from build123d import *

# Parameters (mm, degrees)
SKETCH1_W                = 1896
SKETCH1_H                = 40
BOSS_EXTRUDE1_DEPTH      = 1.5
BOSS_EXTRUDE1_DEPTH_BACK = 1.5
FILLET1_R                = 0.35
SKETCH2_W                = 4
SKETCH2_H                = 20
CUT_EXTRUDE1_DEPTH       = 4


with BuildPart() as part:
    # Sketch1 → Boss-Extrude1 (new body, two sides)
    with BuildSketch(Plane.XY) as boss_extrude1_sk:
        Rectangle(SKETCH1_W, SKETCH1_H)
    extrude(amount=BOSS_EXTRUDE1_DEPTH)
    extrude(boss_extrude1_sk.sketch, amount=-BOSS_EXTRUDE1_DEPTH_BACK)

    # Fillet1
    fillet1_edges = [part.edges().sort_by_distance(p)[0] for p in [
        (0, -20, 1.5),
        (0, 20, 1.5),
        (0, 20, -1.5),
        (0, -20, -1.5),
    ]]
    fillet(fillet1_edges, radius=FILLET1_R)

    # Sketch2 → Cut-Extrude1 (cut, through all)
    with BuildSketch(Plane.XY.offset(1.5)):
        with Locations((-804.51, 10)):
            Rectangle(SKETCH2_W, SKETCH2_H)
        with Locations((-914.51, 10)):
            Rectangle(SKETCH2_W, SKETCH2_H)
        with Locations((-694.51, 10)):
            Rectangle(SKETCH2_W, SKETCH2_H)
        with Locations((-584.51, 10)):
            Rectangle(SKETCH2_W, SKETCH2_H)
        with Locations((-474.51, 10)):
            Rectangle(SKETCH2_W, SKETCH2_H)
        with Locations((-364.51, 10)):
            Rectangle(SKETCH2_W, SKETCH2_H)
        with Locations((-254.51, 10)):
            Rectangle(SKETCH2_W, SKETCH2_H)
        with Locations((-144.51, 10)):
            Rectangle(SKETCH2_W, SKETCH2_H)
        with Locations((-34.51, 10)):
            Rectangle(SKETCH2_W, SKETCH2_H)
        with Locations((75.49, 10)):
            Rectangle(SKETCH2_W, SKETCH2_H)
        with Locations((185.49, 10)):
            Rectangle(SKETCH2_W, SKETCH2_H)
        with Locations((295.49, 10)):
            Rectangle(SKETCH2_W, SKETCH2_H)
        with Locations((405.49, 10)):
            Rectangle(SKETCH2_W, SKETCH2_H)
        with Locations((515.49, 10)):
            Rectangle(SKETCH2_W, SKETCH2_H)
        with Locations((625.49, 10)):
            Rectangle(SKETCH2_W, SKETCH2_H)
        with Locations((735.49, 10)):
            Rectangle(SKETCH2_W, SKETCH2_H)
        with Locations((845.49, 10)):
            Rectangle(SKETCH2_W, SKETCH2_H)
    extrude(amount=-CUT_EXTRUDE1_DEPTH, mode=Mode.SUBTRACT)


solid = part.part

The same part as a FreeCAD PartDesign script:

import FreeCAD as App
import Part
import Sketcher


def edges_at(feature, points):
    """Names of the edges that pass closest to the given points."""
    edges = feature.Shape.Edges
    near = lambda p: min(range(len(edges)), key=lambda i: edges[i].distToShape(Part.Vertex(*p))[0])
    return sorted({f"Edge{near(p) + 1}" for p in points})

doc = App.newDocument("Part")
params = doc.addObject("Spreadsheet::Sheet", "Params")
for row, (alias, value) in enumerate([
    ("sketch1_width", "1896 mm"),
    ("sketch1_height", "40 mm"),
    ("pad1_length", "1.5 mm"),
    ("pad1_length2", "1.5 mm"),
    ("fillet_radius", "0.35 mm"),
    ("sketch2_width", "4 mm"),
    ("sketch2_height", "20 mm"),
], start=1):
    params.set(f"A{row}", alias)
    params.set(f"B{row}", "=" + value)
    params.setAlias(f"B{row}", alias)

body = doc.addObject("PartDesign::Body", "Body")

# Sketch on XY plane
sketch1 = body.newObject("Sketcher::SketchObject", "Sketch")
sketch1.AttachmentSupport = (doc.getObject("XY_Plane"), [""])
sketch1.MapMode = "FlatFace"
sketch1.addGeometry([
    Part.LineSegment(App.Vector(-948, 20, 0), App.Vector(-948, -20, 0)),
    Part.LineSegment(App.Vector(-948, -20, 0), App.Vector(948, -20, 0)),
    Part.LineSegment(App.Vector(948, -20, 0), App.Vector(948, 20, 0)),
    Part.LineSegment(App.Vector(948, 20, 0), App.Vector(-948, 20, 0)),
], False)
sketch1.addConstraint([
    Sketcher.Constraint("Coincident", 0, 2, 1, 1),
    Sketcher.Constraint("Coincident", 1, 2, 2, 1),
    Sketcher.Constraint("Coincident", 2, 2, 3, 1),
    Sketcher.Constraint("Coincident", 3, 2, 0, 1),
    Sketcher.Constraint("Vertical", 0),
    Sketcher.Constraint("Horizontal", 1),
    Sketcher.Constraint("Vertical", 2),
    Sketcher.Constraint("Horizontal", 3),
    Sketcher.Constraint("Symmetric", 0, 2, 2, 2, -1, 1),
    Sketcher.Constraint("DistanceX", 1, 1, 1, 2, 1896.0),
    Sketcher.Constraint("DistanceY", 0, 2, 0, 1, 40.0),
])
sketch1.setExpression("Constraints[9]", "Params.sketch1_width")
sketch1.setExpression("Constraints[10]", "Params.sketch1_height")
pad1 = body.newObject("PartDesign::Pad", "Pad")
pad1.Profile = sketch1
pad1.Type = "TwoLengths"
pad1.setExpression("Length", "Params.pad1_length")
pad1.setExpression("Length2", "Params.pad1_length2")
doc.recompute()

fillet = body.newObject("PartDesign::Fillet", "Fillet")
fillet.Base = (pad1, edges_at(pad1, [
    (0, -20, 1.5),
    (0, 20, 1.5),
    (0, 20, -1.5),
    (0, -20, -1.5),
]))
fillet.setExpression("Radius", "Params.fillet_radius")

# Sketch on XY plane
sketch2 = body.newObject("Sketcher::SketchObject", "Sketch001")
sketch2.AttachmentSupport = (doc.getObject("XY_Plane"), [""])
sketch2.MapMode = "FlatFace"
sketch2.AttachmentOffset = App.Placement(App.Vector(0, 0, 1.5), App.Rotation())
sketch2.addGeometry([
    Part.LineSegment(App.Vector(-806.51, 20, 0), App.Vector(-806.51, 0, 0)),  # 0
    Part.LineSegment(App.Vector(-806.51, 0, 0), App.Vector(-802.51, 0, 0)),  # 1
    Part.LineSegment(App.Vector(-802.51, 0, 0), App.Vector(-802.51, 20, 0)),  # 2
    Part.LineSegment(App.Vector(-802.51, 20, 0), App.Vector(-806.51, 20, 0)),  # 3
    Part.LineSegment(App.Vector(-916.51, 20, 0), App.Vector(-916.51, 0, 0)),  # 4
    Part.LineSegment(App.Vector(-916.51, 0, 0), App.Vector(-912.51, 0, 0)),  # 5
    Part.LineSegment(App.Vector(-912.51, 0, 0), App.Vector(-912.51, 20, 0)),  # 6
    Part.LineSegment(App.Vector(-912.51, 20, 0), App.Vector(-916.51, 20, 0)),  # 7
    Part.LineSegment(App.Vector(-696.51, 20, 0), App.Vector(-696.51, 0, 0)),  # 8
    Part.LineSegment(App.Vector(-696.51, 0, 0), App.Vector(-692.51, 0, 0)),  # 9
    Part.LineSegment(App.Vector(-692.51, 0, 0), App.Vector(-692.51, 20, 0)),  # 10
    Part.LineSegment(App.Vector(-692.51, 20, 0), App.Vector(-696.51, 20, 0)),  # 11
    Part.LineSegment(App.Vector(-586.51, 20, 0), App.Vector(-586.51, 0, 0)),  # 12
    Part.LineSegment(App.Vector(-586.51, 0, 0), App.Vector(-582.51, 0, 0)),  # 13
    Part.LineSegment(App.Vector(-582.51, 0, 0), App.Vector(-582.51, 20, 0)),  # 14
    Part.LineSegment(App.Vector(-582.51, 20, 0), App.Vector(-586.51, 20, 0)),  # 15
    Part.LineSegment(App.Vector(-476.51, 20, 0), App.Vector(-476.51, 0, 0)),  # 16
    Part.LineSegment(App.Vector(-476.51, 0, 0), App.Vector(-472.51, 0, 0)),  # 17
    Part.LineSegment(App.Vector(-472.51, 0, 0), App.Vector(-472.51, 20, 0)),  # 18
    Part.LineSegment(App.Vector(-472.51, 20, 0), App.Vector(-476.51, 20, 0)),  # 19
    Part.LineSegment(App.Vector(-366.51, 20, 0), App.Vector(-366.51, 0, 0)),  # 20
    Part.LineSegment(App.Vector(-366.51, 0, 0), App.Vector(-362.51, 0, 0)),  # 21
    Part.LineSegment(App.Vector(-362.51, 0, 0), App.Vector(-362.51, 20, 0)),  # 22
    Part.LineSegment(App.Vector(-362.51, 20, 0), App.Vector(-366.51, 20, 0)),  # 23
    Part.LineSegment(App.Vector(-256.51, 20, 0), App.Vector(-256.51, 0, 0)),  # 24
    Part.LineSegment(App.Vector(-256.51, 0, 0), App.Vector(-252.51, 0, 0)),  # 25
    Part.LineSegment(App.Vector(-252.51, 0, 0), App.Vector(-252.51, 20, 0)),  # 26
    Part.LineSegment(App.Vector(-252.51, 20, 0), App.Vector(-256.51, 20, 0)),  # 27
    Part.LineSegment(App.Vector(-146.51, 20, 0), App.Vector(-146.51, 0, 0)),  # 28
    Part.LineSegment(App.Vector(-146.51, 0, 0), App.Vector(-142.51, 0, 0)),  # 29
    Part.LineSegment(App.Vector(-142.51, 0, 0), App.Vector(-142.51, 20, 0)),  # 30
    Part.LineSegment(App.Vector(-142.51, 20, 0), App.Vector(-146.51, 20, 0)),  # 31
    Part.LineSegment(App.Vector(-36.51, 20, 0), App.Vector(-36.51, 0, 0)),  # 32
    Part.LineSegment(App.Vector(-36.51, 0, 0), App.Vector(-32.51, 0, 0)),  # 33
    Part.LineSegment(App.Vector(-32.51, 0, 0), App.Vector(-32.51, 20, 0)),  # 34
    Part.LineSegment(App.Vector(-32.51, 20, 0), App.Vector(-36.51, 20, 0)),  # 35
    Part.LineSegment(App.Vector(73.49, 20, 0), App.Vector(73.49, 0, 0)),  # 36
    Part.LineSegment(App.Vector(73.49, 0, 0), App.Vector(77.49, 0, 0)),  # 37
    Part.LineSegment(App.Vector(77.49, 0, 0), App.Vector(77.49, 20, 0)),  # 38
    Part.LineSegment(App.Vector(77.49, 20, 0), App.Vector(73.49, 20, 0)),  # 39
    Part.LineSegment(App.Vector(183.49, 20, 0), App.Vector(183.49, 0, 0)),  # 40
    Part.LineSegment(App.Vector(183.49, 0, 0), App.Vector(187.49, 0, 0)),  # 41
    Part.LineSegment(App.Vector(187.49, 0, 0), App.Vector(187.49, 20, 0)),  # 42
    Part.LineSegment(App.Vector(187.49, 20, 0), App.Vector(183.49, 20, 0)),  # 43
    Part.LineSegment(App.Vector(293.49, 20, 0), App.Vector(293.49, 0, 0)),  # 44
    Part.LineSegment(App.Vector(293.49, 0, 0), App.Vector(297.49, 0, 0)),  # 45
    Part.LineSegment(App.Vector(297.49, 0, 0), App.Vector(297.49, 20, 0)),  # 46
    Part.LineSegment(App.Vector(297.49, 20, 0), App.Vector(293.49, 20, 0)),  # 47
    Part.LineSegment(App.Vector(403.49, 20, 0), App.Vector(403.49, 0, 0)),  # 48
    Part.LineSegment(App.Vector(403.49, 0, 0), App.Vector(407.49, 0, 0)),  # 49
    Part.LineSegment(App.Vector(407.49, 0, 0), App.Vector(407.49, 20, 0)),  # 50
    Part.LineSegment(App.Vector(407.49, 20, 0), App.Vector(403.49, 20, 0)),  # 51
    Part.LineSegment(App.Vector(513.49, 20, 0), App.Vector(513.49, 0, 0)),  # 52
    Part.LineSegment(App.Vector(513.49, 0, 0), App.Vector(517.49, 0, 0)),  # 53
    Part.LineSegment(App.Vector(517.49, 0, 0), App.Vector(517.49, 20, 0)),  # 54
    Part.LineSegment(App.Vector(517.49, 20, 0), App.Vector(513.49, 20, 0)),  # 55
    Part.LineSegment(App.Vector(623.49, 20, 0), App.Vector(623.49, 0, 0)),  # 56
    Part.LineSegment(App.Vector(623.49, 0, 0), App.Vector(627.49, 0, 0)),  # 57
    Part.LineSegment(App.Vector(627.49, 0, 0), App.Vector(627.49, 20, 0)),  # 58
    Part.LineSegment(App.Vector(627.49, 20, 0), App.Vector(623.49, 20, 0)),  # 59
    Part.LineSegment(App.Vector(733.49, 20, 0), App.Vector(733.49, 0, 0)),  # 60
    Part.LineSegment(App.Vector(733.49, 0, 0), App.Vector(737.49, 0, 0)),  # 61
    Part.LineSegment(App.Vector(737.49, 0, 0), App.Vector(737.49, 20, 0)),  # 62
    Part.LineSegment(App.Vector(737.49, 20, 0), App.Vector(733.49, 20, 0)),  # 63
    Part.LineSegment(App.Vector(843.49, 20, 0), App.Vector(843.49, 0, 0)),  # 64
    Part.LineSegment(App.Vector(843.49, 0, 0), App.Vector(847.49, 0, 0)),  # 65
    Part.LineSegment(App.Vector(847.49, 0, 0), App.Vector(847.49, 20, 0)),  # 66
    Part.LineSegment(App.Vector(847.49, 20, 0), App.Vector(843.49, 20, 0)),  # 67
], False)
sketch2.addConstraint([
    Sketcher.Constraint("Coincident", 0, 2, 1, 1),
    Sketcher.Constraint("Coincident", 1, 2, 2, 1),
    Sketcher.Constraint("Coincident", 2, 2, 3, 1),
    Sketcher.Constraint("Coincident", 3, 2, 0, 1),
    Sketcher.Constraint("Coincident", 4, 2, 5, 1),
    Sketcher.Constraint("Coincident", 5, 2, 6, 1),
    Sketcher.Constraint("Coincident", 6, 2, 7, 1),
    Sketcher.Constraint("Coincident", 7, 2, 4, 1),
    Sketcher.Constraint("Coincident", 8, 2, 9, 1),
    Sketcher.Constraint("Coincident", 9, 2, 10, 1),
    Sketcher.Constraint("Coincident", 10, 2, 11, 1),
    Sketcher.Constraint("Coincident", 11, 2, 8, 1),
    Sketcher.Constraint("Coincident", 12, 2, 13, 1),
    Sketcher.Constraint("Coincident", 13, 2, 14, 1),
    Sketcher.Constraint("Coincident", 14, 2, 15, 1),
    Sketcher.Constraint("Coincident", 15, 2, 12, 1),
    Sketcher.Constraint("Coincident", 16, 2, 17, 1),
    Sketcher.Constraint("Coincident", 17, 2, 18, 1),
    Sketcher.Constraint("Coincident", 18, 2, 19, 1),
    Sketcher.Constraint("Coincident", 19, 2, 16, 1),
    Sketcher.Constraint("Coincident", 20, 2, 21, 1),
    Sketcher.Constraint("Coincident", 21, 2, 22, 1),
    Sketcher.Constraint("Coincident", 22, 2, 23, 1),
    Sketcher.Constraint("Coincident", 23, 2, 20, 1),
    Sketcher.Constraint("Coincident", 24, 2, 25, 1),
    Sketcher.Constraint("Coincident", 25, 2, 26, 1),
    Sketcher.Constraint("Coincident", 26, 2, 27, 1),
    Sketcher.Constraint("Coincident", 27, 2, 24, 1),
    Sketcher.Constraint("Coincident", 28, 2, 29, 1),
    Sketcher.Constraint("Coincident", 29, 2, 30, 1),
    Sketcher.Constraint("Coincident", 30, 2, 31, 1),
    Sketcher.Constraint("Coincident", 31, 2, 28, 1),
    Sketcher.Constraint("Coincident", 32, 2, 33, 1),
    Sketcher.Constraint("Coincident", 33, 2, 34, 1),
    Sketcher.Constraint("Coincident", 34, 2, 35, 1),
    Sketcher.Constraint("Coincident", 35, 2, 32, 1),
    Sketcher.Constraint("Coincident", 36, 2, 37, 1),
    Sketcher.Constraint("Coincident", 37, 2, 38, 1),
    Sketcher.Constraint("Coincident", 38, 2, 39, 1),
    Sketcher.Constraint("Coincident", 39, 2, 36, 1),
    Sketcher.Constraint("Coincident", 40, 2, 41, 1),
    Sketcher.Constraint("Coincident", 41, 2, 42, 1),
    Sketcher.Constraint("Coincident", 42, 2, 43, 1),
    Sketcher.Constraint("Coincident", 43, 2, 40, 1),
    Sketcher.Constraint("Coincident", 44, 2, 45, 1),
    Sketcher.Constraint("Coincident", 45, 2, 46, 1),
    Sketcher.Constraint("Coincident", 46, 2, 47, 1),
    Sketcher.Constraint("Coincident", 47, 2, 44, 1),
    Sketcher.Constraint("Coincident", 48, 2, 49, 1),
    Sketcher.Constraint("Coincident", 49, 2, 50, 1),
    Sketcher.Constraint("Coincident", 50, 2, 51, 1),
    Sketcher.Constraint("Coincident", 51, 2, 48, 1),
    Sketcher.Constraint("Coincident", 52, 2, 53, 1),
    Sketcher.Constraint("Coincident", 53, 2, 54, 1),
    Sketcher.Constraint("Coincident", 54, 2, 55, 1),
    Sketcher.Constraint("Coincident", 55, 2, 52, 1),
    Sketcher.Constraint("Coincident", 56, 2, 57, 1),
    Sketcher.Constraint("Coincident", 57, 2, 58, 1),
    Sketcher.Constraint("Coincident", 58, 2, 59, 1),
    Sketcher.Constraint("Coincident", 59, 2, 56, 1),
    Sketcher.Constraint("Coincident", 60, 2, 61, 1),
    Sketcher.Constraint("Coincident", 61, 2, 62, 1),
    Sketcher.Constraint("Coincident", 62, 2, 63, 1),
    Sketcher.Constraint("Coincident", 63, 2, 60, 1),
    Sketcher.Constraint("Coincident", 64, 2, 65, 1),
    Sketcher.Constraint("Coincident", 65, 2, 66, 1),
    Sketcher.Constraint("Coincident", 66, 2, 67, 1),
    Sketcher.Constraint("Coincident", 67, 2, 64, 1),
    Sketcher.Constraint("Vertical", 0),
    Sketcher.Constraint("Horizontal", 1),
    Sketcher.Constraint("Vertical", 2),
    Sketcher.Constraint("Horizontal", 3),
    Sketcher.Constraint("Vertical", 4),
    Sketcher.Constraint("Horizontal", 5),
    Sketcher.Constraint("Vertical", 6),
    Sketcher.Constraint("Horizontal", 7),
    Sketcher.Constraint("Vertical", 8),
    Sketcher.Constraint("Horizontal", 9),
    Sketcher.Constraint("Vertical", 10),
    Sketcher.Constraint("Horizontal", 11),
    Sketcher.Constraint("Vertical", 12),
    Sketcher.Constraint("Horizontal", 13),
    Sketcher.Constraint("Vertical", 14),
    Sketcher.Constraint("Horizontal", 15),
    Sketcher.Constraint("Vertical", 16),
    Sketcher.Constraint("Horizontal", 17),
    Sketcher.Constraint("Vertical", 18),
    Sketcher.Constraint("Horizontal", 19),
    Sketcher.Constraint("Vertical", 20),
    Sketcher.Constraint("Horizontal", 21),
    Sketcher.Constraint("Vertical", 22),
    Sketcher.Constraint("Horizontal", 23),
    Sketcher.Constraint("Vertical", 24),
    Sketcher.Constraint("Horizontal", 25),
    Sketcher.Constraint("Vertical", 26),
    Sketcher.Constraint("Horizontal", 27),
    Sketcher.Constraint("Vertical", 28),
    Sketcher.Constraint("Horizontal", 29),
    Sketcher.Constraint("Vertical", 30),
    Sketcher.Constraint("Horizontal", 31),
    Sketcher.Constraint("Vertical", 32),
    Sketcher.Constraint("Horizontal", 33),
    Sketcher.Constraint("Vertical", 34),
    Sketcher.Constraint("Horizontal", 35),
    Sketcher.Constraint("Vertical", 36),
    Sketcher.Constraint("Horizontal", 37),
    Sketcher.Constraint("Vertical", 38),
    Sketcher.Constraint("Horizontal", 39),
    Sketcher.Constraint("Vertical", 40),
    Sketcher.Constraint("Horizontal", 41),
    Sketcher.Constraint("Vertical", 42),
    Sketcher.Constraint("Horizontal", 43),
    Sketcher.Constraint("Vertical", 44),
    Sketcher.Constraint("Horizontal", 45),
    Sketcher.Constraint("Vertical", 46),
    Sketcher.Constraint("Horizontal", 47),
    Sketcher.Constraint("Vertical", 48),
    Sketcher.Constraint("Horizontal", 49),
    Sketcher.Constraint("Vertical", 50),
    Sketcher.Constraint("Horizontal", 51),
    Sketcher.Constraint("Vertical", 52),
    Sketcher.Constraint("Horizontal", 53),
    Sketcher.Constraint("Vertical", 54),
    Sketcher.Constraint("Horizontal", 55),
    Sketcher.Constraint("Vertical", 56),
    Sketcher.Constraint("Horizontal", 57),
    Sketcher.Constraint("Vertical", 58),
    Sketcher.Constraint("Horizontal", 59),
    Sketcher.Constraint("Vertical", 60),
    Sketcher.Constraint("Horizontal", 61),
    Sketcher.Constraint("Vertical", 62),
    Sketcher.Constraint("Horizontal", 63),
    Sketcher.Constraint("Vertical", 64),
    Sketcher.Constraint("Horizontal", 65),
    Sketcher.Constraint("Vertical", 66),
    Sketcher.Constraint("Horizontal", 67),
    Sketcher.Constraint("PointOnObject", 0, 2, -1),
    Sketcher.Constraint("PointOnObject", 4, 2, -1),
    Sketcher.Constraint("PointOnObject", 8, 2, -1),
    Sketcher.Constraint("PointOnObject", 12, 2, -1),
    Sketcher.Constraint("PointOnObject", 16, 2, -1),
    Sketcher.Constraint("PointOnObject", 20, 2, -1),
    Sketcher.Constraint("PointOnObject", 24, 2, -1),
    Sketcher.Constraint("PointOnObject", 28, 2, -1),
    Sketcher.Constraint("PointOnObject", 32, 2, -1),
    Sketcher.Constraint("PointOnObject", 36, 2, -1),
    Sketcher.Constraint("PointOnObject", 40, 2, -1),
    Sketcher.Constraint("PointOnObject", 44, 2, -1),
    Sketcher.Constraint("PointOnObject", 48, 2, -1),
    Sketcher.Constraint("PointOnObject", 52, 2, -1),
    Sketcher.Constraint("PointOnObject", 56, 2, -1),
    Sketcher.Constraint("PointOnObject", 60, 2, -1),
    Sketcher.Constraint("PointOnObject", 64, 2, -1),
    Sketcher.Constraint("Horizontal", 3, 2, 6, 2),
    Sketcher.Constraint("Horizontal", 7, 2, 10, 2),
    Sketcher.Constraint("Horizontal", 11, 2, 14, 2),
    Sketcher.Constraint("Horizontal", 15, 2, 18, 2),
    Sketcher.Constraint("Horizontal", 19, 2, 22, 2),
    Sketcher.Constraint("Horizontal", 23, 2, 26, 2),
    Sketcher.Constraint("Horizontal", 27, 2, 30, 2),
    Sketcher.Constraint("Horizontal", 31, 2, 34, 2),
    Sketcher.Constraint("Horizontal", 35, 2, 38, 2),
    Sketcher.Constraint("Horizontal", 39, 2, 42, 2),
    Sketcher.Constraint("Horizontal", 43, 2, 46, 2),
    Sketcher.Constraint("Horizontal", 47, 2, 50, 2),
    Sketcher.Constraint("Horizontal", 51, 2, 54, 2),
    Sketcher.Constraint("Horizontal", 55, 2, 58, 2),
    Sketcher.Constraint("Horizontal", 59, 2, 62, 2),
    Sketcher.Constraint("Horizontal", 63, 2, 66, 2),
    Sketcher.Constraint("Equal", 3, 5),
    Sketcher.Constraint("Equal", 7, 9),
    Sketcher.Constraint("Equal", 11, 13),
    Sketcher.Constraint("Equal", 15, 17),
    Sketcher.Constraint("Equal", 19, 21),
    Sketcher.Constraint("Equal", 23, 25),
    Sketcher.Constraint("Equal", 27, 29),
    Sketcher.Constraint("Equal", 31, 33),
    Sketcher.Constraint("Equal", 35, 37),
    Sketcher.Constraint("Equal", 39, 41),
    Sketcher.Constraint("Equal", 43, 45),
    Sketcher.Constraint("Equal", 47, 49),
    Sketcher.Constraint("Equal", 51, 53),
    Sketcher.Constraint("Equal", 55, 57),
    Sketcher.Constraint("Equal", 59, 61),
    Sketcher.Constraint("Equal", 63, 65),
    Sketcher.Constraint("DistanceX", 1, 1, 1, 2, 4.0),
    Sketcher.Constraint("DistanceY", 0, 2, 0, 1, 20.0),
    Sketcher.Constraint("DistanceX", 0, 2, -1, 1, 806.51),
    Sketcher.Constraint("DistanceX", 4, 2, -1, 1, 916.51),
    Sketcher.Constraint("DistanceX", 8, 2, -1, 1, 696.51),
    Sketcher.Constraint("DistanceX", 12, 2, -1, 1, 586.51),
    Sketcher.Constraint("DistanceX", 16, 2, -1, 1, 476.51),
    Sketcher.Constraint("DistanceX", 20, 2, -1, 1, 366.51),
    Sketcher.Constraint("DistanceX", 24, 2, -1, 1, 256.51),
    Sketcher.Constraint("DistanceX", 28, 2, -1, 1, 146.51),
    Sketcher.Constraint("DistanceX", 32, 2, -1, 1, 36.51),
    Sketcher.Constraint("DistanceX", -1, 1, 36, 2, 73.49),
    Sketcher.Constraint("DistanceX", -1, 1, 40, 2, 183.49),
    Sketcher.Constraint("DistanceX", -1, 1, 44, 2, 293.49),
    Sketcher.Constraint("DistanceX", -1, 1, 48, 2, 403.49),
    Sketcher.Constraint("DistanceX", -1, 1, 52, 2, 513.49),
    Sketcher.Constraint("DistanceX", -1, 1, 56, 2, 623.49),
    Sketcher.Constraint("DistanceX", -1, 1, 60, 2, 733.49),
    Sketcher.Constraint("DistanceX", -1, 1, 64, 2, 843.49),
])
sketch2.setExpression("Constraints[185]", "Params.sketch2_width")
sketch2.setExpression("Constraints[186]", "Params.sketch2_height")
pocket1 = body.newObject("PartDesign::Pocket", "Pocket")
pocket1.Profile = sketch2
pocket1.Type = "ThroughAll"

doc.recompute()
